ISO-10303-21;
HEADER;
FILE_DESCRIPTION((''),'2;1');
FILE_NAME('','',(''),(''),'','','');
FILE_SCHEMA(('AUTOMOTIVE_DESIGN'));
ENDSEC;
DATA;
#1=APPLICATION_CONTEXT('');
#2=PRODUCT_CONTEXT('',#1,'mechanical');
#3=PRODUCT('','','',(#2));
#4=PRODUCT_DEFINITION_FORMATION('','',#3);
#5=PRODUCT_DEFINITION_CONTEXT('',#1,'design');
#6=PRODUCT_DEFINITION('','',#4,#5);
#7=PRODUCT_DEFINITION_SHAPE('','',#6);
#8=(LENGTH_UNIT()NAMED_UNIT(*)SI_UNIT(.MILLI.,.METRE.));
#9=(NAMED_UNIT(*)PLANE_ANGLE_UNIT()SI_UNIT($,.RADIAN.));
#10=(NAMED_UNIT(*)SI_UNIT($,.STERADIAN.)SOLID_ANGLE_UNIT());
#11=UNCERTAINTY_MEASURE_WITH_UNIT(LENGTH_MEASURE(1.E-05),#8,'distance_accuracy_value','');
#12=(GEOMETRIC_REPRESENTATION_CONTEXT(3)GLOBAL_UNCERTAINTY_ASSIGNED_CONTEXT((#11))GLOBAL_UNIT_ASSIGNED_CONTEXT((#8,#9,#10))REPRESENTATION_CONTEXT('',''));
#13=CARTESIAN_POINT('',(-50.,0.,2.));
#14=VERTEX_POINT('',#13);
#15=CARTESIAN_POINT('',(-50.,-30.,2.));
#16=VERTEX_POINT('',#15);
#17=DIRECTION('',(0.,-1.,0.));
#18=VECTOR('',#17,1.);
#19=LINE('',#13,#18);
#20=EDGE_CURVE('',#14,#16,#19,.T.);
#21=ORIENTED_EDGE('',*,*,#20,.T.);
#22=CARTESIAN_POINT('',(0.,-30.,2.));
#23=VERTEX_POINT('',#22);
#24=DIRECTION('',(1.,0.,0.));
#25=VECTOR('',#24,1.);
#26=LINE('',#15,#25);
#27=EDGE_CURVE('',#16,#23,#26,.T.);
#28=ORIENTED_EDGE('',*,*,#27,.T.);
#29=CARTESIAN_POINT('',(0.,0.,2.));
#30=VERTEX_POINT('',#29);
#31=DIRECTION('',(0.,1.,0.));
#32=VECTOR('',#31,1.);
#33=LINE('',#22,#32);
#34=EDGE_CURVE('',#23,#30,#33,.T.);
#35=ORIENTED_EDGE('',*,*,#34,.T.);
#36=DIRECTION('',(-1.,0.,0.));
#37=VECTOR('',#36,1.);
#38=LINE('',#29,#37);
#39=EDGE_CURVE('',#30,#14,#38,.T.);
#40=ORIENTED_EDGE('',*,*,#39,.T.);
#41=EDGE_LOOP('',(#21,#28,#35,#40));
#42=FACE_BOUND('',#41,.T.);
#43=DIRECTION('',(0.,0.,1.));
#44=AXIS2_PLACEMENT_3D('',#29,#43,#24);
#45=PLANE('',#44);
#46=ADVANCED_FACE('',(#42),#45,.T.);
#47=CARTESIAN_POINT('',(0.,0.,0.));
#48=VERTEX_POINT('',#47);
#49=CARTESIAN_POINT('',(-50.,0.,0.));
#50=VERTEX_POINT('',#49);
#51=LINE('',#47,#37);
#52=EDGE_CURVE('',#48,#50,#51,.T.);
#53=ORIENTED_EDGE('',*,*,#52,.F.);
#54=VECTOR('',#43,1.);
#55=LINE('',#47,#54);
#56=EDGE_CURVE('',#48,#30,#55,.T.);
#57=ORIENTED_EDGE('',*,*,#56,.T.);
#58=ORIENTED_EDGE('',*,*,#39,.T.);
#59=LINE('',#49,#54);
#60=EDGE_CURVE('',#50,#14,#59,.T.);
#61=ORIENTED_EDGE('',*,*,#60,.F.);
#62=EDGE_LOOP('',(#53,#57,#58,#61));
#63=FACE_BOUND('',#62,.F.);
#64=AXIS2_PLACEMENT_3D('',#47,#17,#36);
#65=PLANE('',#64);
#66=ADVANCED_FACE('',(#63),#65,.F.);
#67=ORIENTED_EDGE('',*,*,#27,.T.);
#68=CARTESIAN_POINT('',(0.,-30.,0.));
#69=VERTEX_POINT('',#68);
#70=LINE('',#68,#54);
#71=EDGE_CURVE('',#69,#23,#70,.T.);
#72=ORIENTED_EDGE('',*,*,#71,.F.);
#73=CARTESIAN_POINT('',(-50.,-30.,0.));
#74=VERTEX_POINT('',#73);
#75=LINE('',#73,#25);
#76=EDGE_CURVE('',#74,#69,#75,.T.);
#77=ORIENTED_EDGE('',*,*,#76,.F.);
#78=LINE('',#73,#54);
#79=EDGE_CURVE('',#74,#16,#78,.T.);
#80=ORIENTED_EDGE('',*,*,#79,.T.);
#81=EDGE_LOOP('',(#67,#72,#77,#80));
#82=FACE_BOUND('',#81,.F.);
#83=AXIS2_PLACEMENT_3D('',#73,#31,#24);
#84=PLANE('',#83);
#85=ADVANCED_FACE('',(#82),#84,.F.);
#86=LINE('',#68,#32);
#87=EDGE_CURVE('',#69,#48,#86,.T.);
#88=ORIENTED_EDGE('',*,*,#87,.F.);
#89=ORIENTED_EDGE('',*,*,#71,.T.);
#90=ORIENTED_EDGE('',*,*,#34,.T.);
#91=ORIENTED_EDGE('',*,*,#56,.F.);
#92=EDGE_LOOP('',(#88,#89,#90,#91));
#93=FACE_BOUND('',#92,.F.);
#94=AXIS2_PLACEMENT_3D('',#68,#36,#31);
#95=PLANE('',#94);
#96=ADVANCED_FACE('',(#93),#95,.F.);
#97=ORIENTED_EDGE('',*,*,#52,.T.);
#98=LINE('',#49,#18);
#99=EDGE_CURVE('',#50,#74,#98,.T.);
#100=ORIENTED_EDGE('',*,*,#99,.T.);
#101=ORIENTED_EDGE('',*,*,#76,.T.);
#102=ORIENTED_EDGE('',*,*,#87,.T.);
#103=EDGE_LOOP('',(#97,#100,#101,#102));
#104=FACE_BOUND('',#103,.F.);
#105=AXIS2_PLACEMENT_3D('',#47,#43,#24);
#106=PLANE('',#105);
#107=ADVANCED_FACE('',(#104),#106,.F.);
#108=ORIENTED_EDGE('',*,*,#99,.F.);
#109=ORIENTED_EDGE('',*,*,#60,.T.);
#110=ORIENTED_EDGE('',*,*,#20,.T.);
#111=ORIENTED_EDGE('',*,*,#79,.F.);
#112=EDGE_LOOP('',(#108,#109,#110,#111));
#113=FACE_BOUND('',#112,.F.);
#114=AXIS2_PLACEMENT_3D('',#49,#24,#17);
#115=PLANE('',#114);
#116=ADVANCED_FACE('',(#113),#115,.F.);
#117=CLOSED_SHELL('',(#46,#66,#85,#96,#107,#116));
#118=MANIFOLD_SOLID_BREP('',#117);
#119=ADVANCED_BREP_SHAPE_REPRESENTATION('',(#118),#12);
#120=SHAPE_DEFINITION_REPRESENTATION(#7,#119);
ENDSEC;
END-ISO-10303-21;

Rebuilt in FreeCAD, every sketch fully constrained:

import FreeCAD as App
import Part
import Sketcher
Q = App.Units.Quantity

doc = App.newDocument("Part")
body = doc.addObject("PartDesign::Body", "Body")

sketch1 = body.newObject("Sketcher::SketchObject", "Sketch")
sketch1.AttachmentSupport = (doc.getObject("XY_Plane"), [""])
sketch1.MapMode = "FlatFace"
sketch1.addGeometry([
    Part.LineSegment(App.Vector(0, -30, 0), App.Vector(0, 0, 0)),
    Part.LineSegment(App.Vector(0, 0, 0), App.Vector(-50, 0, 0)),
    Part.LineSegment(App.Vector(-50, 0, 0), App.Vector(-50, -30, 0)),
    Part.LineSegment(App.Vector(-50, -30, 0), App.Vector(0, -30, 0)),
], False)
sketch1.addConstraint([
    Sketcher.Constraint("Coincident", 0, 2, 1, 1),
    Sketcher.Constraint("Coincident", 1, 2, 2, 1),
    Sketcher.Constraint("Coincident", 2, 2, 3, 1),
    Sketcher.Constraint("Coincident", 3, 2, 0, 1),
    Sketcher.Constraint("Vertical", 0),
    Sketcher.Constraint("Horizontal", 1),
    Sketcher.Constraint("Vertical", 2),
    Sketcher.Constraint("Horizontal", 3),
    Sketcher.Constraint("Coincident", 0, 2, -1, 1),
    Sketcher.Constraint("DistanceX", 1, 2, 1, 1, Q("50 mm")),
    Sketcher.Constraint("DistanceY", 0, 1, 0, 2, Q("30 mm")),
])
pad1 = body.newObject("PartDesign::Pad", "Pad")
pad1.Profile = sketch1
pad1.Length = 2

doc.recompute()
